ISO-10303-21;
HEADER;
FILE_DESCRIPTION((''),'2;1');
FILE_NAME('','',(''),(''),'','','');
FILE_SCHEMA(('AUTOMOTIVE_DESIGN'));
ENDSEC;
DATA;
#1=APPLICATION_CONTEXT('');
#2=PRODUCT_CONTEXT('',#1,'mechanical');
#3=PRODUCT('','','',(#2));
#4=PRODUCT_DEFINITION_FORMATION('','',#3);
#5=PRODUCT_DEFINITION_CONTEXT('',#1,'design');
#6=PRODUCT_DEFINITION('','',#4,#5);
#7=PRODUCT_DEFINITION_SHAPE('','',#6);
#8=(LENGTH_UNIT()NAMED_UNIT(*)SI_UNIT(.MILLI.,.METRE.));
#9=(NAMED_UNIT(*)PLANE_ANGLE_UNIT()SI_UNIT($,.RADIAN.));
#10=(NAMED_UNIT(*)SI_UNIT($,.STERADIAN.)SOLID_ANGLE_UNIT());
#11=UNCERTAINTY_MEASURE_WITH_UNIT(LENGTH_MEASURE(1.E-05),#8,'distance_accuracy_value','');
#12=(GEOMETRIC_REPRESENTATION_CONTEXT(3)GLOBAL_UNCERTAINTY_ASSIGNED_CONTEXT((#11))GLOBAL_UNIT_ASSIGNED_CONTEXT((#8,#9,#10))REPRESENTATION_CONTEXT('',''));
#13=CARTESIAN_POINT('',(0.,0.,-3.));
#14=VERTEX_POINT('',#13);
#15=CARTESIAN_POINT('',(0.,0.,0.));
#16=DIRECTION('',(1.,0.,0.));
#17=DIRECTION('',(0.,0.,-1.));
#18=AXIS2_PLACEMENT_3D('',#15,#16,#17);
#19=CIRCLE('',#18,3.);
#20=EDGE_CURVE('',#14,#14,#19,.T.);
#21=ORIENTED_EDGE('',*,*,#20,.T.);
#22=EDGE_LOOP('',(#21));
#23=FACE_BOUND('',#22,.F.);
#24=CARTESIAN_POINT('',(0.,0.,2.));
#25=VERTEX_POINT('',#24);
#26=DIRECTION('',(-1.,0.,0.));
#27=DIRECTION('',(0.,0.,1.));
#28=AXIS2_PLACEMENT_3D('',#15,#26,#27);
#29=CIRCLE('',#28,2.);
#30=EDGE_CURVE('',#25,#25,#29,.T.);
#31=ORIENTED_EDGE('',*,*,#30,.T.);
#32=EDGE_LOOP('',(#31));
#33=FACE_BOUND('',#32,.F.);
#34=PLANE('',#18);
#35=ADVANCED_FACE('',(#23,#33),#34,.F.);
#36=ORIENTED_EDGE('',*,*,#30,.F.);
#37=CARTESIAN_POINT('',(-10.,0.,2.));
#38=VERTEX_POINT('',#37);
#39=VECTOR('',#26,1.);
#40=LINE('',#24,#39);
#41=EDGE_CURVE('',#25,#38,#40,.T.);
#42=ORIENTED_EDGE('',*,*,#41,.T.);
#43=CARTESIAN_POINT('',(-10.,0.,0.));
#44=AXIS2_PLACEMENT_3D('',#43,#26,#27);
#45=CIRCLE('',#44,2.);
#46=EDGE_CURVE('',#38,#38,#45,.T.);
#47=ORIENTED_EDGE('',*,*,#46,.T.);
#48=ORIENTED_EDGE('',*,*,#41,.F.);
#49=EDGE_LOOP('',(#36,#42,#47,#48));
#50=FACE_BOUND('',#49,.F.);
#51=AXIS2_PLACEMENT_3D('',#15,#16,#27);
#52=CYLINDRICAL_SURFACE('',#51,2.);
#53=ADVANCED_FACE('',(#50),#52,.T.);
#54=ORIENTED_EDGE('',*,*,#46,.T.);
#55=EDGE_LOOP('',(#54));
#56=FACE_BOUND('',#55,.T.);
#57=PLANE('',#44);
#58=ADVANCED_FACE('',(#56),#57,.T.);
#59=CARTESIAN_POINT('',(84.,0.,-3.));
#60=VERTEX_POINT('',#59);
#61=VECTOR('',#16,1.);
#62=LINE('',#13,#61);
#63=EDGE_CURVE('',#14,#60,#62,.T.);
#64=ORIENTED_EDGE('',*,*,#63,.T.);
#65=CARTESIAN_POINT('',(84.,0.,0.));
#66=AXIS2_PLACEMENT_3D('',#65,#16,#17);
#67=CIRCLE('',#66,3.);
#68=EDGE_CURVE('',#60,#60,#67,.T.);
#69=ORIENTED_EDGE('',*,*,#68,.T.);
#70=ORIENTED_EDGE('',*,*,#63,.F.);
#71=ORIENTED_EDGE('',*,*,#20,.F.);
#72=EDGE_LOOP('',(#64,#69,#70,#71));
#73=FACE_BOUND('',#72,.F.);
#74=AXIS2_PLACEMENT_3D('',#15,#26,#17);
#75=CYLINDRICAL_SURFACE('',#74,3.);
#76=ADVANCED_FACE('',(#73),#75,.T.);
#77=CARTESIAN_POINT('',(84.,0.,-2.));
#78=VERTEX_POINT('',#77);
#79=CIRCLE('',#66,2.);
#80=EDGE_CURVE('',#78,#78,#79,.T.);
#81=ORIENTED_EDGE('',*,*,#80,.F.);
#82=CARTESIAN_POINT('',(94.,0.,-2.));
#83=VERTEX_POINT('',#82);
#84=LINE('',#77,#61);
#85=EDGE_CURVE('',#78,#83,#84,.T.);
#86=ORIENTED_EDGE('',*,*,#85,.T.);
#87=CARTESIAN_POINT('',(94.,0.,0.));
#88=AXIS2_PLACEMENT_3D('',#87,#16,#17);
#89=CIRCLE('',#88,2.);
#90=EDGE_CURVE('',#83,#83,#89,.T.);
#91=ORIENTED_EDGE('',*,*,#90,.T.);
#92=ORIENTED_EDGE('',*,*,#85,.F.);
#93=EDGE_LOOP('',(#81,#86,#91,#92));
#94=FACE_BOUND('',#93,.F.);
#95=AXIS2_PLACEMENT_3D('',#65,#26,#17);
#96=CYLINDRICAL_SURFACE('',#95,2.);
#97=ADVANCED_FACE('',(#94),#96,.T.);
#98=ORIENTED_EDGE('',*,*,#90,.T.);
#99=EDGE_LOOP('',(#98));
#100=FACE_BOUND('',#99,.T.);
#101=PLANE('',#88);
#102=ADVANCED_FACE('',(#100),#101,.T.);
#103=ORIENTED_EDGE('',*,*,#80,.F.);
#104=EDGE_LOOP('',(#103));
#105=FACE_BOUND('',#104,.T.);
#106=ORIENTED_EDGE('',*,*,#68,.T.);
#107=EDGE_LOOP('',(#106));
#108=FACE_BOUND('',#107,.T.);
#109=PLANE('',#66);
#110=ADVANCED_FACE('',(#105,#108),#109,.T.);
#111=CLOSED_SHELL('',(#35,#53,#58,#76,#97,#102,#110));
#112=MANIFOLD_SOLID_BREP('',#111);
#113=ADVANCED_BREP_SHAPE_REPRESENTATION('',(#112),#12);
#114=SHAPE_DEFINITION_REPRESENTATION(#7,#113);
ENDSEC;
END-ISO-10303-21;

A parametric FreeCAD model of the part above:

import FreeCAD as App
import Part
import Sketcher
from FreeCAD import Vector
Q = App.Units.Quantity

doc = App.newDocument("Part")
body = doc.addObject("PartDesign::Body", "Body")

# Sketch on YZ plane
sketch1 = body.newObject("Sketcher::SketchObject", "Sketch")
sketch1.AttachmentSupport = (doc.getObject("YZ_Plane"), [""])
sketch1.MapMode = "FlatFace"
sketch1.addGeometry(Part.Circle(Vector(0, 0, 0), Vector(0, 0, 1), 3), False)
sketch1.addConstraint([
    Sketcher.Constraint("Coincident", 0, 3, -1, 1),
    Sketcher.Constraint("Diameter", 0, Q("6 mm")),
])
pad1 = body.newObject("PartDesign::Pad", "Pad")
pad1.Profile = sketch1
pad1.Length = 84

# Sketch on YZ plane
sketch2 = body.newObject("Sketcher::SketchObject", "Sketch001")
sketch2.AttachmentSupport = (doc.getObject("YZ_Plane"), [""])
sketch2.MapMode = "FlatFace"
sketch2.AttachmentOffset = App.Placement(Vector(0, 0, 84), App.Rotation())
sketch2.addGeometry(Part.Circle(Vector(0, 0, 0), Vector(0, 0, 1), 2), False)
sketch2.addConstraint([
    Sketcher.Constraint("Coincident", 0, 3, -1, 1),
    Sketcher.Constraint("Diameter", 0, Q("4 mm")),
])
pad2 = body.newObject("PartDesign::Pad", "Pad001")
pad2.Profile = sketch2
pad2.Length = 10

# Sketch on YZ plane
sketch3 = body.newObject("Sketcher::SketchObject", "Sketch002")
sketch3.AttachmentSupport = (doc.getObject("YZ_Plane"), [""])
sketch3.MapMode = "FlatFace"
sketch3.addGeometry(Part.Circle(Vector(0, 0, 0), Vector(0, 0, 1), 2), False)
sketch3.addConstraint([
    Sketcher.Constraint("Coincident", 0, 3, -1, 1),
    Sketcher.Constraint("Diameter", 0, Q("4 mm")),
])
pad3 = body.newObject("PartDesign::Pad", "Pad002")
pad3.Profile = sketch3
pad3.Length = 10
pad3.Reversed = True

doc.recompute()
